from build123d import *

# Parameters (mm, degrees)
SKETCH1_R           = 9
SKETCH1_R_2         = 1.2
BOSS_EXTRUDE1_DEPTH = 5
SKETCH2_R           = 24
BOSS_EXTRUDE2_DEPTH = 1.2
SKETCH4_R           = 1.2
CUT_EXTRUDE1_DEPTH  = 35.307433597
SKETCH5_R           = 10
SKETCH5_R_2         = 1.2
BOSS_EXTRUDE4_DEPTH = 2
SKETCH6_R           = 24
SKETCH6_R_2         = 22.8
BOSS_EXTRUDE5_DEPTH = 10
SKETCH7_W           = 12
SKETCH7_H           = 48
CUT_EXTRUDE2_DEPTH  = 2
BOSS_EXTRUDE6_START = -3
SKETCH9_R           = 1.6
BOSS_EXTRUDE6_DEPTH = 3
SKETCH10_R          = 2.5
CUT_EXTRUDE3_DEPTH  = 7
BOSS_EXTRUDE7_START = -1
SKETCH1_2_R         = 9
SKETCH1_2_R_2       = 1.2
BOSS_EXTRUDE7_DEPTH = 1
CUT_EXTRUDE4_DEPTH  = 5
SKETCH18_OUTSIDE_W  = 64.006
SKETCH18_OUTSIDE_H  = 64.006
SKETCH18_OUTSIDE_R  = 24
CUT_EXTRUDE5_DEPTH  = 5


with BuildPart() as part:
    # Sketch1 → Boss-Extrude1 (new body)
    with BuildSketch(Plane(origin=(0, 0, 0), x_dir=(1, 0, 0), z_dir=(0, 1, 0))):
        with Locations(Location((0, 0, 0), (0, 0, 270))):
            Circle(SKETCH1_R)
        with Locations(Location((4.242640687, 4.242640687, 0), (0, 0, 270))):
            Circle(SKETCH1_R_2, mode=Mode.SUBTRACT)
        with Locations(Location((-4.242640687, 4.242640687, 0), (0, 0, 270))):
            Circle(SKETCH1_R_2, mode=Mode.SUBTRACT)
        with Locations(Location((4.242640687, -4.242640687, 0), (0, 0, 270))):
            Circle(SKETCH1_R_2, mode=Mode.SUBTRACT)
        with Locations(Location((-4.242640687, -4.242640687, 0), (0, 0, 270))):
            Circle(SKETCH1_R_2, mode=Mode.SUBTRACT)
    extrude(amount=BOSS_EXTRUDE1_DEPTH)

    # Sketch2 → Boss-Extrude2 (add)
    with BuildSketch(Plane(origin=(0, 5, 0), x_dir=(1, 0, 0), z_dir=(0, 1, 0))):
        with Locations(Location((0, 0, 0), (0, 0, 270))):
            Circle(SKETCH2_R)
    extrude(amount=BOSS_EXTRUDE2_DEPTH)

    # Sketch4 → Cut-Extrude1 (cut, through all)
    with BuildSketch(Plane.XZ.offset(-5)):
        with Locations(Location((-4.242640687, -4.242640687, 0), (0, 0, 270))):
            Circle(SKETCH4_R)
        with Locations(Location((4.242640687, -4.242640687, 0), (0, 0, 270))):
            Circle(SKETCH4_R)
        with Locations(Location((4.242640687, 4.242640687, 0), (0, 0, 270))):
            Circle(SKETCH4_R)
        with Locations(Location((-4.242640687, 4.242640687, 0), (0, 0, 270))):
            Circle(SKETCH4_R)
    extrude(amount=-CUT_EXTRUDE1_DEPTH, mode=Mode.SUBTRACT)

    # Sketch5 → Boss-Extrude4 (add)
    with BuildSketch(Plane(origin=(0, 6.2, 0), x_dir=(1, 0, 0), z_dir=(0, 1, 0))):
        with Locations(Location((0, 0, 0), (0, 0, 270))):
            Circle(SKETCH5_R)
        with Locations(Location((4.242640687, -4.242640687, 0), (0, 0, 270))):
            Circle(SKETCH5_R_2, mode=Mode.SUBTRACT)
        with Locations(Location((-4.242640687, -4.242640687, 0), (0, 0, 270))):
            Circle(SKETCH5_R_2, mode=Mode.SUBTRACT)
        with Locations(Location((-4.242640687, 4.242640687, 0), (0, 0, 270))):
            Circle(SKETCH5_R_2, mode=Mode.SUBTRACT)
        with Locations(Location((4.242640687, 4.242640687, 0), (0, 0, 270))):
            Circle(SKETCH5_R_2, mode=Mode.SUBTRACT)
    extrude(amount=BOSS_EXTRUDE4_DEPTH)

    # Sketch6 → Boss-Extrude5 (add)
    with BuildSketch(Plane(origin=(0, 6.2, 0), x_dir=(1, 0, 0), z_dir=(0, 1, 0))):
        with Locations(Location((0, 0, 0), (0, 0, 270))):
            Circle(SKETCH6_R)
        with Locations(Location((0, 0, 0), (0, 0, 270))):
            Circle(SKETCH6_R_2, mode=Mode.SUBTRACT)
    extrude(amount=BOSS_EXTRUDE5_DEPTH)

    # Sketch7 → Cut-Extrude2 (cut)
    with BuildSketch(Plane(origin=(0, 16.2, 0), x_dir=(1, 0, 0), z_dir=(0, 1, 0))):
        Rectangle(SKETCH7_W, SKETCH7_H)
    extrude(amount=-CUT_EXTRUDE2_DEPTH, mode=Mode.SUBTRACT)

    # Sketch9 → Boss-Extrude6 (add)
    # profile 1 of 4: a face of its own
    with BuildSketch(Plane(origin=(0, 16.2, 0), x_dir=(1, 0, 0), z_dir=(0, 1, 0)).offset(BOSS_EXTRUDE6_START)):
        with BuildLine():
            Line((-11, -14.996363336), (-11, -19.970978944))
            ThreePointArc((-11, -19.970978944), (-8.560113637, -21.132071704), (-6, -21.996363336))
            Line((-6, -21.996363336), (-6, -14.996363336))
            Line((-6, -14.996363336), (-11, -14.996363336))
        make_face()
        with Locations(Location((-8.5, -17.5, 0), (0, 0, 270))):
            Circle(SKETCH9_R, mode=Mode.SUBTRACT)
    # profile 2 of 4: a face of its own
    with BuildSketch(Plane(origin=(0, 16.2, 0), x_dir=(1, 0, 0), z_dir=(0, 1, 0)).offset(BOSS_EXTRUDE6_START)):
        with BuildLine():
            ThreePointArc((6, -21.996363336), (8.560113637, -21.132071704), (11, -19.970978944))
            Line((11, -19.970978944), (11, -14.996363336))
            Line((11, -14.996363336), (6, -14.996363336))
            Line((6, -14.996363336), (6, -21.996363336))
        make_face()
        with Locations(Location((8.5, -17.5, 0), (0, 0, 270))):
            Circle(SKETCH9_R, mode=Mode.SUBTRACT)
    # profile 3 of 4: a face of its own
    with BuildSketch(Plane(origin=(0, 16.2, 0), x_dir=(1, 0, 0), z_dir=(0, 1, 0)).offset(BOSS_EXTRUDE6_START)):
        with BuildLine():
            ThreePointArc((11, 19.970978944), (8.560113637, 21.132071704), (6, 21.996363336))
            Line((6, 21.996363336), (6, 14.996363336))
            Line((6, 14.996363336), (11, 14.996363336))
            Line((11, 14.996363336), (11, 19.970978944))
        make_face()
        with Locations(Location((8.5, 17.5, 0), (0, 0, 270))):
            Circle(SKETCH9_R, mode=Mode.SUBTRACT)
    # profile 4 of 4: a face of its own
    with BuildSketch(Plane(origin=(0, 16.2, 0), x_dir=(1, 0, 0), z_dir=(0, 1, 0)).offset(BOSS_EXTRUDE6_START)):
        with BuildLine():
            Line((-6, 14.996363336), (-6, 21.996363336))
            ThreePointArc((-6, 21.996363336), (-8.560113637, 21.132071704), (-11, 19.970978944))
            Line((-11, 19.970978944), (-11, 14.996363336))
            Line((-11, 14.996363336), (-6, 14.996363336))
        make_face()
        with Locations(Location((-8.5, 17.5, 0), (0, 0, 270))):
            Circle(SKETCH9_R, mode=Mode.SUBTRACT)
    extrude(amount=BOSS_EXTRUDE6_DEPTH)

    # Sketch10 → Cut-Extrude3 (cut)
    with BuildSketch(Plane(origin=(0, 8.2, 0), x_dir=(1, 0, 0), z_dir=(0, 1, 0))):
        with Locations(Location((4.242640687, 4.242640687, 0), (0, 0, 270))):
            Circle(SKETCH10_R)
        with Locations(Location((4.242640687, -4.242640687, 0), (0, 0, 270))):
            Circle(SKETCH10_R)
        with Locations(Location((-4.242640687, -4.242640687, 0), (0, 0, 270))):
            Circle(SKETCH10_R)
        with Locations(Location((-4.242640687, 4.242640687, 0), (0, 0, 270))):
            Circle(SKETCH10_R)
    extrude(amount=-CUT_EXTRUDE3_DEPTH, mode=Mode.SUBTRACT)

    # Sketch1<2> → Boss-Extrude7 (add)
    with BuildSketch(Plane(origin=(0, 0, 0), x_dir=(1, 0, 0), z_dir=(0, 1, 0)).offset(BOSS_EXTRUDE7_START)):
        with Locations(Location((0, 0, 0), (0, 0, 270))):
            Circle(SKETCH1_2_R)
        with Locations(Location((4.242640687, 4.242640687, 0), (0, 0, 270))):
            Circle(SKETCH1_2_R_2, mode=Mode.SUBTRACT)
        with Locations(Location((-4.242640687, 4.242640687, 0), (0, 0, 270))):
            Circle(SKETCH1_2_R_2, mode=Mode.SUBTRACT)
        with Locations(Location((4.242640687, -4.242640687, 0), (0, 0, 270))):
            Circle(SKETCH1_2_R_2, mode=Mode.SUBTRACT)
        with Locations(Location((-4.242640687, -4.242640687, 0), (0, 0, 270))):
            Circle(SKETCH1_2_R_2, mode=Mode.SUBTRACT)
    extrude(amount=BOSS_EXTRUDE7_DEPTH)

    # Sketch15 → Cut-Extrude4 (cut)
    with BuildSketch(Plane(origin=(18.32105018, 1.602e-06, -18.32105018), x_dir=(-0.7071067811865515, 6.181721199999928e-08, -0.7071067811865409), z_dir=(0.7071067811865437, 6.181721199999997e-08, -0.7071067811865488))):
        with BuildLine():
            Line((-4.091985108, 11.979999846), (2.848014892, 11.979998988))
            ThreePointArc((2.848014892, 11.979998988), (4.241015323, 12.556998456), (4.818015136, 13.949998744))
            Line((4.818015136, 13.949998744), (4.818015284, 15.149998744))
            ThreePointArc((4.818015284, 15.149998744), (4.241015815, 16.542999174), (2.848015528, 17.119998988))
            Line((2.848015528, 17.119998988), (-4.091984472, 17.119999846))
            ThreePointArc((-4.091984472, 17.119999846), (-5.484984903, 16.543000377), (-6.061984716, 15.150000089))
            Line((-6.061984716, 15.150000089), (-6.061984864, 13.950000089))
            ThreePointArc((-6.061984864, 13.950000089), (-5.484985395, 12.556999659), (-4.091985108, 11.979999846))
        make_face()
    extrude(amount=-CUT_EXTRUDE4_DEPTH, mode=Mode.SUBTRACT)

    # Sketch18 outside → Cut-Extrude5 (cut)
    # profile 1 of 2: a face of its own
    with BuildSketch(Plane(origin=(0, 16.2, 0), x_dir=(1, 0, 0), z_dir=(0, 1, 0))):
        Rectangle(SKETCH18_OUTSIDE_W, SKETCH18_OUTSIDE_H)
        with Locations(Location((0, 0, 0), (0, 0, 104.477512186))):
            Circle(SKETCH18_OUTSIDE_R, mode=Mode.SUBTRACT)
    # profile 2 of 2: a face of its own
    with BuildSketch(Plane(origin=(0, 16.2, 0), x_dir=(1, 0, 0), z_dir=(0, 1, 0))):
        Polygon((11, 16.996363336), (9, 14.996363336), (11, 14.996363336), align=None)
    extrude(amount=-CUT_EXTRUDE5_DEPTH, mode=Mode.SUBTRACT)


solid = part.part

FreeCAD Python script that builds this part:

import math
import FreeCAD as App
import Part
import Sketcher

V = App.Vector


def add_polygon(sketch, points):
    """Adds a closed chain of lines whose ends are joined by coincident constraints."""
    first, n = sketch.GeometryCount, len(points)
    for a, b in zip(points, points[1:] + points[:1]):
        sketch.addGeometry(Part.LineSegment(App.Vector(*a, 0), App.Vector(*b, 0)), False)
    for i in range(n):
        sketch.addConstraint(Sketcher.Constraint("Coincident", first + i, 2, first + (i + 1) % n, 1))

doc = App.newDocument("Part")
body = doc.addObject("PartDesign::Body", "Body")

# Sketch on XZ plane
sketch1 = body.newObject("Sketcher::SketchObject", "Sketch")
sketch1.AttachmentSupport = (doc.getObject("XZ_Plane"), [""])
sketch1.MapMode = "FlatFace"
sketch1.addGeometry([
    Part.Circle(V(0, 0, 0), V(0, 0, 1), 9),  # 0
    Part.Circle(V(-4.2, -4.2, 0), V(0, 0, 1), 1.2),  # 1
    Part.Circle(V(-4.2, 4.2, 0), V(0, 0, 1), 1.2),  # 2
    Part.Circle(V(4.2, -4.2, 0), V(0, 0, 1), 1.2),  # 3
    Part.Circle(V(4.2, 4.2, 0), V(0, 0, 1), 1.2),  # 4
], False)
sketch1.addConstraint([
    Sketcher.Constraint("Coincident", 0, 3, -1, 1),
    Sketcher.Constraint("Equal", 1, 2),
    Sketcher.Constraint("Equal", 2, 3),
    Sketcher.Constraint("Equal", 3, 4),
    Sketcher.Constraint("Symmetric", 2, 3, 3, 3, -1, 1),
    Sketcher.Constraint("Symmetric", 1, 3, 4, 3, -1, 1),
    Sketcher.Constraint("Symmetric", 1, 3, 3, 3, -2),
    Sketcher.Constraint("Diameter", 0, 18.0),
    Sketcher.Constraint("Diameter", 1, 2.4),
    Sketcher.Constraint("DistanceX", 1, 3, -1, 1, 4.242641),
    Sketcher.Constraint("DistanceY", 1, 3, -1, 1, 4.242641),
])
pad1 = body.newObject("PartDesign::Pad", "Pad")
pad1.Profile = sketch1
pad1.Length = 5
pad1.Reversed = True

# Sketch on XZ plane
sketch2 = body.newObject("Sketcher::SketchObject", "Sketch001")
sketch2.AttachmentSupport = (doc.getObject("XZ_Plane"), [""])
sketch2.MapMode = "FlatFace"
sketch2.AttachmentOffset = App.Placement(V(0, 0, -5), App.Rotation())
sketch2.addGeometry(Part.Circle(V(0, 0, 0), V(0, 0, 1), 24), False)
sketch2.addConstraint([
    Sketcher.Constraint("Coincident", 0, 3, -1, 1),
    Sketcher.Constraint("Diameter", 0, 48.0),
])
pad2 = body.newObject("PartDesign::Pad", "Pad001")
pad2.Profile = sketch2
pad2.Length = 1.2
pad2.Reversed = True

# Sketch on XZ plane
sketch3 = body.newObject("Sketcher::SketchObject", "Sketch002")
sketch3.AttachmentSupport = (doc.getObject("XZ_Plane"), [""])
sketch3.MapMode = "FlatFace"
sketch3.AttachmentOffset = App.Placement(V(0, 0, -5), App.Rotation())
sketch3.addGeometry([
    Part.Circle(V(-4.2, -4.2, 0), V(0, 0, 1), 1.2),
    Part.Circle(V(4.2, -4.2, 0), V(0, 0, 1), 1.2),
    Part.Circle(V(4.2, 4.2, 0), V(0, 0, 1), 1.2),
    Part.Circle(V(-4.2, 4.2, 0), V(0, 0, 1), 1.2),
], False)
sketch3.addConstraint([
    Sketcher.Constraint("Equal", 0, 1),
    Sketcher.Constraint("Equal", 1, 2),
    Sketcher.Constraint("Equal", 2, 3),
    Sketcher.Constraint("Symmetric", 0, 3, 2, 3, -1, 1),
    Sketcher.Constraint("Symmetric", 1, 3, 3, 3, -1, 1),
    Sketcher.Constraint("Symmetric", 0, 3, 1, 3, -2),
    Sketcher.Constraint("Diameter", 0, 2.4),
    Sketcher.Constraint("DistanceX", 0, 3, -1, 1, 4.242641),
    Sketcher.Constraint("DistanceY", 0, 3, -1, 1, 4.242641),
])
pocket1 = body.newObject("PartDesign::Pocket", "Pocket")
pocket1.Profile = sketch3
pocket1.Type = "ThroughAll"

# Sketch on XZ plane
sketch4 = body.newObject("Sketcher::SketchObject", "Sketch003")
sketch4.AttachmentSupport = (doc.getObject("XZ_Plane"), [""])
sketch4.MapMode = "FlatFace"
sketch4.AttachmentOffset = App.Placement(V(0, 0, -6.2), App.Rotation())
sketch4.addGeometry([
    Part.Circle(V(0, 0, 0), V(0, 0, 1), 10),  # 0
    Part.Circle(V(-4.2, -4.2, 0), V(0, 0, 1), 1.2),  # 1
    Part.Circle(V(-4.2, 4.2, 0), V(0, 0, 1), 1.2),  # 2
    Part.Circle(V(4.2, -4.2, 0), V(0, 0, 1), 1.2),  # 3
    Part.Circle(V(4.2, 4.2, 0), V(0, 0, 1), 1.2),  # 4
], False)
sketch4.addConstraint([
    Sketcher.Constraint("Coincident", 0, 3, -1, 1),
    Sketcher.Constraint("Equal", 1, 2),
    Sketcher.Constraint("Equal", 2, 3),
    Sketcher.Constraint("Equal", 3, 4),
    Sketcher.Constraint("Symmetric", 2, 3, 3, 3, -1, 1),
    Sketcher.Constraint("Symmetric", 1, 3, 4, 3, -1, 1),
    Sketcher.Constraint("Symmetric", 1, 3, 3, 3, -2),
    Sketcher.Constraint("Diameter", 0, 20.0),
    Sketcher.Constraint("Diameter", 1, 2.4),
    Sketcher.Constraint("DistanceX", 1, 3, -1, 1, 4.242641),
    Sketcher.Constraint("DistanceY", 1, 3, -1, 1, 4.242641),
])
pad3 = body.newObject("PartDesign::Pad", "Pad002")
pad3.Profile = sketch4
pad3.Length = 2
pad3.Reversed = True

# Sketch on XZ plane
sketch5 = body.newObject("Sketcher::SketchObject", "Sketch004")
sketch5.AttachmentSupport = (doc.getObject("XZ_Plane"), [""])
sketch5.MapMode = "FlatFace"
sketch5.AttachmentOffset = App.Placement(V(0, 0, -6.2), App.Rotation())
sketch5.addGeometry([
    Part.Circle(V(0, 0, 0), V(0, 0, 1), 24),
    Part.Circle(V(0, 0, 0), V(0, 0, 1), 23),
], False)
sketch5.addConstraint([
    Sketcher.Constraint("Coincident", 0, 3, -1, 1),
    Sketcher.Constraint("Coincident", 1, 3, -1, 1),
    Sketcher.Constraint("Diameter", 0, 48.0),
    Sketcher.Constraint("Diameter", 1, 45.6),
])
pad4 = body.newObject("PartDesign::Pad", "Pad003")
pad4.Profile = sketch5
pad4.Length = 10
pad4.Reversed = True

# Sketch on XZ plane
sketch6 = body.newObject("Sketcher::SketchObject", "Sketch005")
sketch6.AttachmentSupport = (doc.getObject("XZ_Plane"), [""])
sketch6.MapMode = "FlatFace"
sketch6.AttachmentOffset = App.Placement(V(0, 0, -16.2), App.Rotation())
add_polygon(sketch6, [(-6, -24), (-6, 24), (6, 24), (6, -24)])  # lines 0-3
sketch6.addConstraint([
    Sketcher.Constraint("Vertical", 0),
    Sketcher.Constraint("Horizontal", 1),
    Sketcher.Constraint("Vertical", 2),
    Sketcher.Constraint("Horizontal", 3),
    Sketcher.Constraint("Symmetric", 0, 2, 2, 2, -1, 1),
    Sketcher.Constraint("DistanceX", 1, 1, 1, 2, 12.0),
    Sketcher.Constraint("DistanceY", 0, 1, 0, 2, 48.0),
])
pocket2 = body.newObject("PartDesign::Pocket", "Pocket001")
pocket2.Profile = sketch6
pocket2.Length = 2
pocket2.Reversed = True

# Sketch on XZ plane
sketch7 = body.newObject("Sketcher::SketchObject", "Sketch006")
sketch7.AttachmentSupport = (doc.getObject("XZ_Plane"), [""])
sketch7.MapMode = "FlatFace"
sketch7.AttachmentOffset = App.Placement(V(0, 0, -13.2), App.Rotation())
sketch7.addGeometry([
    Part.LineSegment(V(-11, 15, 0), V(-11, 20, 0)),  # 0
    Part.ArcOfCircle(Part.Circle(V(0, 0, 0), V(0, 0, 1), 22.8), math.radians(105.26), math.radians(118.85)),  # 1
    Part.LineSegment(V(-6, 22, 0), V(-6, 15, 0)),  # 2
    Part.LineSegment(V(-6, 15, 0), V(-11, 15, 0)),  # 3
    Part.Circle(V(-8.5, 17.5, 0), V(0, 0, 1), 1.6),  # 4
    Part.ArcOfCircle(Part.Circle(V(0, 0, 0), V(0, 0, 1), 22.8), math.radians(61.15), math.radians(74.74)),  # 5
    Part.LineSegment(V(11, 20, 0), V(11, 15, 0)),  # 6
    Part.LineSegment(V(11, 15, 0), V(6, 15, 0)),  # 7
    Part.LineSegment(V(6, 15, 0), V(6, 22, 0)),  # 8
    Part.Circle(V(8.5, 17.5, 0), V(0, 0, 1), 1.6),  # 9
    Part.ArcOfCircle(Part.Circle(V(0, 0, 0), V(0, 0, 1), 22.8), math.radians(-74.74), math.radians(-61.15)),  # 10
    Part.LineSegment(V(6, -22, 0), V(6, -15, 0)),  # 11
    Part.LineSegment(V(6, -15, 0), V(11, -15, 0)),  # 12
    Part.LineSegment(V(11, -15, 0), V(11, -20, 0)),  # 13
    Part.Circle(V(8.5, -17.5, 0), V(0, 0, 1), 1.6),  # 14
    Part.LineSegment(V(-6, -15, 0), V(-6, -22, 0)),  # 15
    Part.ArcOfCircle(Part.Circle(V(0, 0, 0), V(0, 0, 1), 22.8), math.radians(-118.85), math.radians(-105.26)),  # 16
    Part.LineSegment(V(-11, -20, 0), V(-11, -15, 0)),  # 17
    Part.LineSegment(V(-11, -15, 0), V(-6, -15, 0)),  # 18
    Part.Circle(V(-8.5, -17.5, 0), V(0, 0, 1), 1.6),  # 19
], False)
sketch7.addConstraint([
    Sketcher.Constraint("Coincident", 0, 2, 1, 2),
    Sketcher.Constraint("Coincident", 1, 1, 2, 1),
    Sketcher.Constraint("Coincident", 2, 2, 3, 1),
    Sketcher.Constraint("Coincident", 3, 2, 0, 1),
    Sketcher.Constraint("Coincident", 5, 1, 6, 1),
    Sketcher.Constraint("Coincident", 6, 2, 7, 1),
    Sketcher.Constraint("Coincident", 7, 2, 8, 1),
    Sketcher.Constraint("Coincident", 8, 2, 5, 2),
    Sketcher.Constraint("Coincident", 10, 1, 11, 1),
    Sketcher.Constraint("Coincident", 11, 2, 12, 1),
    Sketcher.Constraint("Coincident", 12, 2, 13, 1),
    Sketcher.Constraint("Coincident", 13, 2, 10, 2),
    Sketcher.Constraint("Coincident", 15, 2, 16, 2),
    Sketcher.Constraint("Coincident", 16, 1, 17, 1),
    Sketcher.Constraint("Coincident", 17, 2, 18, 1),
    Sketcher.Constraint("Coincident", 18, 2, 15, 1),
    Sketcher.Constraint("Vertical", 0),
    Sketcher.Constraint("Vertical", 2),
    Sketcher.Constraint("Horizontal", 3),
    Sketcher.Constraint("Vertical", 6),
    Sketcher.Constraint("Horizontal", 7),
    Sketcher.Constraint("Vertical", 8),
    Sketcher.Constraint("Vertical", 11),
    Sketcher.Constraint("Horizontal", 12),
    Sketcher.Constraint("Vertical", 13),
    Sketcher.Constraint("Vertical", 15),
    Sketcher.Constraint("Vertical", 17),
    Sketcher.Constraint("Horizontal", 18),
    Sketcher.Constraint("Coincident", 1, 3, -1, 1),
    Sketcher.Constraint("Coincident", 5, 3, -1, 1),
    Sketcher.Constraint("Coincident", 10, 3, -1, 1),
    Sketcher.Constraint("Coincident", 16, 3, -1, 1),
    Sketcher.Constraint("Equal", 1, 5),
    Sketcher.Constraint("Equal", 4, 9),
    Sketcher.Constraint("Equal", 5, 10),
    Sketcher.Constraint("Equal", 9, 14),
    Sketcher.Constraint("Equal", 10, 16),
    Sketcher.Constraint("Equal", 14, 19),
    Sketcher.Constraint("Symmetric", 4, 3, 14, 3, -1, 1),
    Sketcher.Constraint("Symmetric", 9, 3, 19, 3, -1, 1),
    Sketcher.Constraint("Symmetric", 2, 2, 11, 2, -1, 1),
    Sketcher.Constraint("Symmetric", 6, 2, 17, 2, -1, 1),
    Sketcher.Constraint("Symmetric", 4, 3, 9, 3, -2),
    Sketcher.Constraint("Symmetric", 3, 2, 6, 2, -2),
    Sketcher.Constraint("Horizontal", 1, 1, 8, 2),
    Sketcher.Constraint("Horizontal", 10, 1, 15, 2),
    Sketcher.Constraint("Horizontal", 13, 2, 16, 1),
    Sketcher.Constraint("Diameter", 4, 3.2),
    Sketcher.Constraint("Radius", 1, 22.8),
    Sketcher.Constraint("DistanceX", 3, 2, 3, 1, 5.0),
    Sketcher.Constraint("DistanceY", 2, 2, 2, 1, 7.0),
    Sketcher.Constraint("DistanceX", 0, 2, -1, 1, 11.0),
    Sketcher.Constraint("DistanceX", 4, 3, 9, 3, 17.0),
    Sketcher.Constraint("DistanceY", 14, 3, 9, 3, 35.0),
])
pad5 = body.newObject("PartDesign::Pad", "Pad004")
pad5.Profile = sketch7
pad5.Length = 3
pad5.Reversed = True

# Sketch on XZ plane
sketch8 = body.newObject("Sketcher::SketchObject", "Sketch007")
sketch8.AttachmentSupport = (doc.getObject("XZ_Plane"), [""])
sketch8.MapMode = "FlatFace"
sketch8.AttachmentOffset = App.Placement(V(0, 0, -8.2), App.Rotation())
sketch8.addGeometry([
    Part.Circle(V(4.2, -4.2, 0), V(0, 0, 1), 2.5),
    Part.Circle(V(4.2, 4.2, 0), V(0, 0, 1), 2.5),
    Part.Circle(V(-4.2, 4.2, 0), V(0, 0, 1), 2.5),
    Part.Circle(V(-4.2, -4.2, 0), V(0, 0, 1), 2.5),
], False)
sketch8.addConstraint([
    Sketcher.Constraint("Equal", 0, 1),
    Sketcher.Constraint("Equal", 1, 2),
    Sketcher.Constraint("Equal", 2, 3),
    Sketcher.Constraint("Symmetric", 0, 3, 2, 3, -1, 1),
    Sketcher.Constraint("Symmetric", 1, 3, 3, 3, -1, 1),
    Sketcher.Constraint("Symmetric", 1, 3, 2, 3, -2),
    Sketcher.Constraint("Diameter", 0, 5.0),
    Sketcher.Constraint("DistanceX", -1, 1, 0, 3, 4.242641),
    Sketcher.Constraint("DistanceY", 0, 3, -1, 1, 4.242641),
])
pocket3 = body.newObject("PartDesign::Pocket", "Pocket002")
pocket3.Profile = sketch8
pocket3.Length = 7
pocket3.Reversed = True

# Sketch on XZ plane
sketch9 = body.newObject("Sketcher::SketchObject", "Sketch008")
sketch9.AttachmentSupport = (doc.getObject("XZ_Plane"), [""])
sketch9.MapMode = "FlatFace"
sketch9.AttachmentOffset = App.Placement(V(0, 0, 1), App.Rotation())
sketch9.addGeometry([
    Part.Circle(V(0, 0, 0), V(0, 0, 1), 9),  # 0
    Part.Circle(V(-4.2, -4.2, 0), V(0, 0, 1), 1.2),  # 1
    Part.Circle(V(-4.2, 4.2, 0), V(0, 0, 1), 1.2),  # 2
    Part.Circle(V(4.2, -4.2, 0), V(0, 0, 1), 1.2),  # 3
    Part.Circle(V(4.2, 4.2, 0), V(0, 0, 1), 1.2),  # 4
], False)
sketch9.addConstraint([
    Sketcher.Constraint("Coincident", 0, 3, -1, 1),
    Sketcher.Constraint("Equal", 1, 2),
    Sketcher.Constraint("Equal", 2, 3),
    Sketcher.Constraint("Equal", 3, 4),
    Sketcher.Constraint("Symmetric", 2, 3, 3, 3, -1, 1),
    Sketcher.Constraint("Symmetric", 1, 3, 4, 3, -1, 1),
    Sketcher.Constraint("Symmetric", 1, 3, 3, 3, -2),
    Sketcher.Constraint("Diameter", 0, 18.0),
    Sketcher.Constraint("Diameter", 1, 2.4),
    Sketcher.Constraint("DistanceX", 1, 3, -1, 1, 4.242641),
    Sketcher.Constraint("DistanceY", 1, 3, -1, 1, 4.242641),
])
pad6 = body.newObject("PartDesign::Pad", "Pad005")
pad6.Profile = sketch9
pad6.Length = 1
pad6.Reversed = True

# Sketch on an angled plane
sketch10 = body.newObject("Sketcher::SketchObject", "Sketch009")
sketch10.Placement = App.Placement(V(18.32105, 0.000002, -18.32105), App.Rotation(V(-0.707106781, 0.000000062, -0.707106781), V(0, 0.999999999, 0.000000088), V(0.707106781, 0.000000062, -0.707106781), "ZXY"))
sketch10.addGeometry([
    Part.LineSegment(V(-4.1, 12, 0), V(2.8, 12, 0)),  # 0
    Part.ArcOfCircle(Part.Circle(V(2.8, 13.9, 0), V(0, 0, 1), 2), math.radians(-90), math.radians(0)),  # 1
    Part.LineSegment(V(4.8, 13.9, 0), V(4.8, 15.1, 0)),  # 2
    Part.ArcOfCircle(Part.Circle(V(2.8, 15.1, 0), V(0, 0, 1), 2), math.radians(0), math.radians(90)),  # 3
    Part.LineSegment(V(2.8, 17.1, 0), V(-4.1, 17.1, 0)),  # 4
    Part.ArcOfCircle(Part.Circle(V(-4.1, 15.1, 0), V(0, 0, 1), 2), math.radians(90), math.radians(180)),  # 5
    Part.LineSegment(V(-6.1, 15.2, 0), V(-6.1, 14, 0)),  # 6
    Part.ArcOfCircle(Part.Circle(V(-4.1, 13.9, 0), V(0, 0, 1), 2), math.radians(180), math.radians(270)),  # 7
], False)
sketch10.addConstraint([
    Sketcher.Constraint("Tangent", 0, 2, 1, 1),
    Sketcher.Constraint("Tangent", 1, 2, 2, 1),
    Sketcher.Constraint("Tangent", 2, 2, 3, 1),
    Sketcher.Constraint("Tangent", 3, 2, 4, 1),
    Sketcher.Constraint("Tangent", 4, 2, 5, 1),
    Sketcher.Constraint("Tangent", 5, 2, 6, 1),
    Sketcher.Constraint("Tangent", 6, 2, 7, 1),
    Sketcher.Constraint("Tangent", 7, 2, 0, 1),
    Sketcher.Constraint("Horizontal", 0),
    Sketcher.Constraint("Vertical", 2),
    Sketcher.Constraint("Horizontal", 4),
    Sketcher.Constraint("Vertical", 6),
    Sketcher.Constraint("Equal", 1, 3),
    Sketcher.Constraint("Equal", 3, 5),
    Sketcher.Constraint("Equal", 5, 7),
    Sketcher.Constraint("Radius", 1, 1.97),
    Sketcher.Constraint("DistanceY", 2, 1, 2, 2, 1.2),
    Sketcher.Constraint("DistanceX", 0, 1, 0, 2, 6.94),
    Sketcher.Constraint("DistanceY", -1, 1, 1, 3, 13.949999),
    Sketcher.Constraint("DistanceX", -1, 1, 1, 3, 2.848015),
])
pocket4 = body.newObject("PartDesign::Pocket", "Pocket003")
pocket4.Profile = sketch10
pocket4.Length = 5

# Sketch on XZ plane
sketch11 = body.newObject("Sketcher::SketchObject", "Sketch010")
sketch11.AttachmentSupport = (doc.getObject("XZ_Plane"), [""])
sketch11.MapMode = "FlatFace"
sketch11.AttachmentOffset = App.Placement(V(0, 0, -16.2), App.Rotation())
add_polygon(sketch11, [(-32, -32), (-32, 32), (32, 32), (32, -32)])  # lines 0-3
sketch11.addGeometry(Part.Circle(V(0, 0, 0), V(0, 0, 1), 24), False)  # 4
add_polygon(sketch11, [(11, -17), (9, -15), (11, -15)])  # lines 5-7
sketch11.addConstraint([
    Sketcher.Constraint("Vertical", 0),
    Sketcher.Constraint("Horizontal", 1),
    Sketcher.Constraint("Vertical", 2),
    Sketcher.Constraint("Horizontal", 3),
    Sketcher.Constraint("Horizontal", 6),
    Sketcher.Constraint("Vertical", 7),
    Sketcher.Constraint("Coincident", 4, 3, -1, 1),
    Sketcher.Constraint("Symmetric", 0, 2, 2, 2, -1, 1),
    Sketcher.Constraint("Equal", 3, 0),
    Sketcher.Constraint("Equal", 6, 7),
    Sketcher.Constraint("Diameter", 4, 48.0),
    Sketcher.Constraint("DistanceX", 6, 1, 6, 2, 2.0),
    Sketcher.Constraint("DistanceX", -1, 1, 5, 2, 9.0),
    Sketcher.Constraint("DistanceX", 1, 1, 1, 2, 64.006),
    Sketcher.Constraint("DistanceY", 5, 2, -1, 1, 14.996363),
])
pocket5 = body.newObject("PartDesign::Pocket", "Pocket004")
pocket5.Profile = sketch11
pocket5.Length = 5
pocket5.Reversed = True

doc.recompute()
